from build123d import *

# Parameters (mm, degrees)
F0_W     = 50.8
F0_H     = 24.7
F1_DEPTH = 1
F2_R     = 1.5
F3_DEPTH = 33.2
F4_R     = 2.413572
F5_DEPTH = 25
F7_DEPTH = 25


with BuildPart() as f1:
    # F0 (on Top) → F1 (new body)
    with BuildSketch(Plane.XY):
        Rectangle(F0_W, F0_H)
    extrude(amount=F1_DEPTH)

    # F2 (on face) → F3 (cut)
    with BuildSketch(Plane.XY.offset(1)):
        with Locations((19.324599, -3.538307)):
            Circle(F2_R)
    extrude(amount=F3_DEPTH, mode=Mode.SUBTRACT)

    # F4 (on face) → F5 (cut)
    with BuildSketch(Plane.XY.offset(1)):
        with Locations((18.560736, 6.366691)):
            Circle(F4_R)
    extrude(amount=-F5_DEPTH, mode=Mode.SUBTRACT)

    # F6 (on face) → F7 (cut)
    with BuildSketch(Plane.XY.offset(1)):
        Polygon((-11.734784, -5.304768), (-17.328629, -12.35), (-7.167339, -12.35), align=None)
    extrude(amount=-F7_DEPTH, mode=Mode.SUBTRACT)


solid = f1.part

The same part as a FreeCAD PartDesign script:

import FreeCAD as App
import Part
import Sketcher
from FreeCAD import Vector


def add_polygon(sketch, points):
    """Adds a closed chain of lines whose ends are joined by coincident constraints."""
    first, n = sketch.GeometryCount, len(points)
    for a, b in zip(points, points[1:] + points[:1]):
        sketch.addGeometry(Part.LineSegment(App.Vector(*a, 0), App.Vector(*b, 0)), False)
    for i in range(n):
        sketch.addConstraint(Sketcher.Constraint("Coincident", first + i, 2, first + (i + 1) % n, 1))

doc = App.newDocument("Part")
body = doc.addObject("PartDesign::Body", "Body")

# Sketch on XY plane
sketch1 = body.newObject("Sketcher::SketchObject", "Sketch")
sketch1.AttachmentSupport = (doc.getObject("XY_Plane"), [""])
sketch1.MapMode = "FlatFace"
add_polygon(sketch1, [(-25, 12), (-25, -12), (25, -12), (25, 12)])  # lines 0-3
sketch1.addConstraint(Sketcher.Constraint("Vertical", 0))
sketch1.addConstraint(Sketcher.Constraint("Horizontal", 1))
sketch1.addConstraint(Sketcher.Constraint("Vertical", 2))
sketch1.addConstraint(Sketcher.Constraint("Horizontal", 3))
sketch1.addConstraint(Sketcher.Constraint("Symmetric", 0, 2, 2, 2, -1, 1))
sketch1.addConstraint(Sketcher.Constraint("DistanceX", 1, 1, 1, 2, 50.8))
sketch1.addConstraint(Sketcher.Constraint("DistanceY", 0, 2, 0, 1, 24.7))
pad1 = body.newObject("PartDesign::Pad", "Pad")
pad1.Profile = sketch1
pad1.Length = 1

# Sketch on XY plane
sketch2 = body.newObject("Sketcher::SketchObject", "Sketch001")
sketch2.AttachmentSupport = (doc.getObject("XY_Plane"), [""])
sketch2.MapMode = "FlatFace"
sketch2.AttachmentOffset = App.Placement(Vector(0, 0, 1), App.Rotation())
sketch2.addGeometry(Part.Circle(Vector(19.3, -3.5, 0), Vector(0, 0, 1), 1.5), False)
sketch2.addConstraint(Sketcher.Constraint("Diameter", 0, 3.0))
sketch2.addConstraint(Sketcher.Constraint("DistanceX", -1, 1, 0, 3, 19.324599))
sketch2.addConstraint(Sketcher.Constraint("DistanceY", 0, 3, -1, 1, 3.538307))
pocket1 = body.newObject("PartDesign::Pocket", "Pocket")
pocket1.Profile = sketch2
pocket1.Length = 33.2
pocket1.Reversed = True

# Sketch on XY plane
sketch3 = body.newObject("Sketcher::SketchObject", "Sketch002")
sketch3.AttachmentSupport = (doc.getObject("XY_Plane"), [""])
sketch3.MapMode = "FlatFace"
sketch3.AttachmentOffset = App.Placement(Vector(0, 0, 1), App.Rotation())
sketch3.addGeometry(Part.Circle(Vector(18.6, 6.4, 0), Vector(0, 0, 1), 2.4), False)
sketch3.addConstraint(Sketcher.Constraint("Diameter", 0, 4.827144))
sketch3.addConstraint(Sketcher.Constraint("DistanceY", -1, 1, 0, 3, 6.366691))
sketch3.addConstraint(Sketcher.Constraint("DistanceX", -1, 1, 0, 3, 18.560736))
pocket2 = body.newObject("PartDesign::Pocket", "Pocket001")
pocket2.Profile = sketch3
pocket2.Length = 25

# Sketch on XY plane
sketch4 = body.newObject("Sketcher::SketchObject", "Sketch003")
sketch4.AttachmentSupport = (doc.getObject("XY_Plane"), [""])
sketch4.MapMode = "FlatFace"
sketch4.AttachmentOffset = App.Placement(Vector(0, 0, 1), App.Rotation())
add_polygon(sketch4, [(-12, -5), (-17, -12), (-7, -12)])  # lines 0-2
sketch4.addConstraint(Sketcher.Constraint("Horizontal", 1))
sketch4.addConstraint(Sketcher.Constraint("DistanceY", 0, 2, -1, 1, 12.35))
sketch4.addConstraint(Sketcher.Constraint("DistanceX", 1, 1, 1, 2, 10.16129))
sketch4.addConstraint(Sketcher.Constraint("Distance", 0, 8.99591))
sketch4.addConstraint(Sketcher.Constraint("Distance", 2, 8.39624))
sketch4.addConstraint(Sketcher.Constraint("DistanceX", 0, 2, -1, 1, 17.328629))
pocket3 = body.newObject("PartDesign::Pocket", "Pocket002")
pocket3.Profile = sketch4
pocket3.Length = 25

doc.recompute()
